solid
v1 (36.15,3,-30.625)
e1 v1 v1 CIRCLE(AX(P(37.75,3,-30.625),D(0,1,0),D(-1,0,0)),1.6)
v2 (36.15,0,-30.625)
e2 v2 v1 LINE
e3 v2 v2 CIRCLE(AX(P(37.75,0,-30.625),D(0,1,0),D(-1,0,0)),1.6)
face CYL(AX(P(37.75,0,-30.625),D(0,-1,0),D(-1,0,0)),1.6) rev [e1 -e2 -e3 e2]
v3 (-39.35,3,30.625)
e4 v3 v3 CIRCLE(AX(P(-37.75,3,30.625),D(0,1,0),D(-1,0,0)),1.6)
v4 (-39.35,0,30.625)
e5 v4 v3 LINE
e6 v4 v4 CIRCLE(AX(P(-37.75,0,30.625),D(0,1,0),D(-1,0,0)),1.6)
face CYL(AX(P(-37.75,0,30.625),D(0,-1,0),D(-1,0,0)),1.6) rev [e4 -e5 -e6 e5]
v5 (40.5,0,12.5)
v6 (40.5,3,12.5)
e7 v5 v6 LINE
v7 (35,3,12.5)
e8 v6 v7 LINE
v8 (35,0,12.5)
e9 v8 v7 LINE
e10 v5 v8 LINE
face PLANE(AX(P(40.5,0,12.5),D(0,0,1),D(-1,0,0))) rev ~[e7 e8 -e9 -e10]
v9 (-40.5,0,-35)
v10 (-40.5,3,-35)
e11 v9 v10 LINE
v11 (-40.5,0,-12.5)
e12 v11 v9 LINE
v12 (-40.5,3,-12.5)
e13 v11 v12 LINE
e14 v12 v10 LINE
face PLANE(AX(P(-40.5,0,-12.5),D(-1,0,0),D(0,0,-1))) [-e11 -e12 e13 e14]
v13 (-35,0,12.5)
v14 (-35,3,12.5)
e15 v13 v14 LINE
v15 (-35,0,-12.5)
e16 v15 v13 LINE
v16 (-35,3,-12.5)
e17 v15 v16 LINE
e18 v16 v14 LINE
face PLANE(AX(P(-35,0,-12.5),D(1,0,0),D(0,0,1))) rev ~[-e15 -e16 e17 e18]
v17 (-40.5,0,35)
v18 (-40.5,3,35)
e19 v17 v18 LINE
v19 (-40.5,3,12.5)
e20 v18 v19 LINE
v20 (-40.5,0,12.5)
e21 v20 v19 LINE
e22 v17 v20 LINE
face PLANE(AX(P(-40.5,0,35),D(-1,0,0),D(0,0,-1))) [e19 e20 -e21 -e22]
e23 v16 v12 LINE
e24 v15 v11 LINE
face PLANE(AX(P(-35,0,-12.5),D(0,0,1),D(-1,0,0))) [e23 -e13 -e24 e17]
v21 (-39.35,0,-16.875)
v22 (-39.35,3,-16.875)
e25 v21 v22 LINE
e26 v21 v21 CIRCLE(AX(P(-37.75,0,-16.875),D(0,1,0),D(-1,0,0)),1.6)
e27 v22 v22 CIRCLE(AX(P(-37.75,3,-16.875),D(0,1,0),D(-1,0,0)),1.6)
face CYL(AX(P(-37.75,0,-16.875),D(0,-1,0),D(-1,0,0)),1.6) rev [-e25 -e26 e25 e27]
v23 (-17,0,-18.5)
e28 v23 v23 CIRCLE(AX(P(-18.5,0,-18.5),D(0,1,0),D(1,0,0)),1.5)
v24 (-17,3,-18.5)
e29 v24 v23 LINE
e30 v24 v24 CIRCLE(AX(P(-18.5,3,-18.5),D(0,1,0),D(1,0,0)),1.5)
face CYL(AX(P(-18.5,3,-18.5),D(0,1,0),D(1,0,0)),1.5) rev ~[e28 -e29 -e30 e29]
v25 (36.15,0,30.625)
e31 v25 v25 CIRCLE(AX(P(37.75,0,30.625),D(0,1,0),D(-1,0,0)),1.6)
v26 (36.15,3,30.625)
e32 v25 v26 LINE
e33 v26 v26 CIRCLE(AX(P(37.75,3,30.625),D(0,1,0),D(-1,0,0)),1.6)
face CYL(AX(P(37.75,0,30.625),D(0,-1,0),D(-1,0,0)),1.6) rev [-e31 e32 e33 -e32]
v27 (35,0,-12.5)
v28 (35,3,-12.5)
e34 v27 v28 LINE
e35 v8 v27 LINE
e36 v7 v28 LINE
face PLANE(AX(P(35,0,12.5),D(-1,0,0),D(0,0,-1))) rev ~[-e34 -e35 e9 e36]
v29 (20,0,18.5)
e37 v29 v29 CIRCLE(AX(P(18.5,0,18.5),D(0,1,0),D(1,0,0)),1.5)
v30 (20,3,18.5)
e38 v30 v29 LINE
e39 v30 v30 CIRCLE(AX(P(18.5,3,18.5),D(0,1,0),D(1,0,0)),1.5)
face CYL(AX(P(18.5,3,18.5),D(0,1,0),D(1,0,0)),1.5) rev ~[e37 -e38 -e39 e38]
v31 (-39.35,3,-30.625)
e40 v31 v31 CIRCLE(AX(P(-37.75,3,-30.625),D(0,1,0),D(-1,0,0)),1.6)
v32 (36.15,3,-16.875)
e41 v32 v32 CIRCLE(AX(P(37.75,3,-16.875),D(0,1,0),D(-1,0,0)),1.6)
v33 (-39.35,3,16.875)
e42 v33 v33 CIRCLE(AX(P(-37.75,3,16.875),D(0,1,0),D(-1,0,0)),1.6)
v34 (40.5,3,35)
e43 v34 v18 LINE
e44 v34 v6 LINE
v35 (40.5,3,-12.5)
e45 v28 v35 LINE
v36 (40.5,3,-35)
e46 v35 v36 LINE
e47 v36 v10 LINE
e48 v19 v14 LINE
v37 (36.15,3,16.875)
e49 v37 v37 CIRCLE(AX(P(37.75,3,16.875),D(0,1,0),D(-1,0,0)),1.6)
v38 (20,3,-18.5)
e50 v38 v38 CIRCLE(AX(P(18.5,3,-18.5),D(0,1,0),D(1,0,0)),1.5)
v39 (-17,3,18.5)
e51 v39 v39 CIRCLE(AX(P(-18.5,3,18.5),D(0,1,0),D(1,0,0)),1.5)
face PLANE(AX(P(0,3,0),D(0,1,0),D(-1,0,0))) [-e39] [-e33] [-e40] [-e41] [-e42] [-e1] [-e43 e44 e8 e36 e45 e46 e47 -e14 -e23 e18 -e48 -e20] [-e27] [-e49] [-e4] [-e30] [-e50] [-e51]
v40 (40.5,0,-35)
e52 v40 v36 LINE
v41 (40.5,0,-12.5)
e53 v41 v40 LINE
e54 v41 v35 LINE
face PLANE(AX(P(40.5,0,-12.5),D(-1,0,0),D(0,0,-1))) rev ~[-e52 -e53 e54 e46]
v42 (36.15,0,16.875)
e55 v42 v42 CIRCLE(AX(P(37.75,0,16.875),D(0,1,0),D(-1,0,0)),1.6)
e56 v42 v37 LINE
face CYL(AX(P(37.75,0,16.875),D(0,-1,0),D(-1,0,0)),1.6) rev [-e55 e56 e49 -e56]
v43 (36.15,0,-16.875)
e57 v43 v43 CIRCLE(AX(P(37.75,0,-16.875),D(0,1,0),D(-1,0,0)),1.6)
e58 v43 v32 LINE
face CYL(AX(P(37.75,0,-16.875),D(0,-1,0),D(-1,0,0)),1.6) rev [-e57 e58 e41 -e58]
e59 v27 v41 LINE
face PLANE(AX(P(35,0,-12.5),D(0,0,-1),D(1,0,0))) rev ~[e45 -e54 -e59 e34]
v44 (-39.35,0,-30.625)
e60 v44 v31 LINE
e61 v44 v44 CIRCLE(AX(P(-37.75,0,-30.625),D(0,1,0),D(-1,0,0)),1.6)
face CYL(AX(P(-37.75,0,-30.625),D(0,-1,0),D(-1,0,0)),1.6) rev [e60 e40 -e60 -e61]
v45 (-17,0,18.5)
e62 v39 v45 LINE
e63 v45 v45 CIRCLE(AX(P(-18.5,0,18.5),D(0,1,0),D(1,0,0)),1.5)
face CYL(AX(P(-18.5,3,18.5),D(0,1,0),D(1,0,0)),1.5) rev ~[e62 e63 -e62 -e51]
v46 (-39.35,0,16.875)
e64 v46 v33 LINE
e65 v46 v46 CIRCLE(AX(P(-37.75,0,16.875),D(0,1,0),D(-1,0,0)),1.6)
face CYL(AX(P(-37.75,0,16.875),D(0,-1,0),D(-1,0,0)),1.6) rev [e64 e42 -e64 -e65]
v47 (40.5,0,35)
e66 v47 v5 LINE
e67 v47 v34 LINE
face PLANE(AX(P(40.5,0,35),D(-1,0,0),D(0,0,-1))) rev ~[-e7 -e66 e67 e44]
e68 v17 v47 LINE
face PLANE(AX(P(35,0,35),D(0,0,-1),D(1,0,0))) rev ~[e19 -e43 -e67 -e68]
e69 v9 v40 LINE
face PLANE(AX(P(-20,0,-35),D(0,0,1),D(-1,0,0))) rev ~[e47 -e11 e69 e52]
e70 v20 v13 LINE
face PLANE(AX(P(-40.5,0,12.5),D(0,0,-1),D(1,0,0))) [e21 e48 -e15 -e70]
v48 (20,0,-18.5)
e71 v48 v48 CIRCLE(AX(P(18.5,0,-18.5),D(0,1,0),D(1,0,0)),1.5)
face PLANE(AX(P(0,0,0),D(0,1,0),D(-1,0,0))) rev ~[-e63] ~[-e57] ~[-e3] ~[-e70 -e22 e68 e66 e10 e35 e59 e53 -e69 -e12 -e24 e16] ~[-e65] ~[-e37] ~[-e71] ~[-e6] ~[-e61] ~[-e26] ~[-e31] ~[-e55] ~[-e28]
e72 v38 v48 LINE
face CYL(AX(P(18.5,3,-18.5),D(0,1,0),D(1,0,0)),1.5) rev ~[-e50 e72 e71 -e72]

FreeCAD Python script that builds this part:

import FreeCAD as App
import Part
import Sketcher

V = App.Vector
Q = App.Units.Quantity

doc = App.newDocument("Part")
body = doc.addObject("PartDesign::Body", "Body")

sketch1 = body.newObject("Sketcher::SketchObject", "Sketch")
sketch1.AttachmentSupport = (doc.getObject("XZ_Plane"), [""])
sketch1.MapMode = "FlatFace"
sketch1.addGeometry(Part.LineSegment(V(40.5, 35, 0), V(40.5, 12.5, 0)), False)
sketch1.addGeometry(Part.LineSegment(V(40.5, 12.5, 0), V(35, 12.5, 0)), False)
sketch1.addGeometry(Part.LineSegment(V(35, 12.5, 0), V(35, -12.5, 0)), False)
sketch1.addGeometry(Part.LineSegment(V(35, -12.5, 0), V(40.5, -12.5, 0)), False)
sketch1.addGeometry(Part.LineSegment(V(40.5, -12.5, 0), V(40.5, -35, 0)), False)
sketch1.addGeometry(Part.LineSegment(V(40.5, -35, 0), V(-40.5, -35, 0)), False)
sketch1.addGeometry(Part.LineSegment(V(-40.5, -35, 0), V(-40.5, -12.5, 0)), False)
sketch1.addGeometry(Part.LineSegment(V(-40.5, -12.5, 0), V(-35, -12.5, 0)), False)
sketch1.addGeometry(Part.LineSegment(V(-35, -12.5, 0), V(-35, 12.5, 0)), False)
sketch1.addGeometry(Part.LineSegment(V(-35, 12.5, 0), V(-40.5, 12.5, 0)), False)
sketch1.addGeometry(Part.LineSegment(V(-40.5, 12.5, 0), V(-40.5, 35, 0)), False)
sketch1.addGeometry(Part.LineSegment(V(-40.5, 35, 0), V(40.5, 35, 0)), False)
sketch1.addGeometry(Part.Circle(V(37.75, 16.875, 0), V(0, 0, 1), 1.6), False)
sketch1.addGeometry(Part.Circle(V(37.75, 30.625, 0), V(0, 0, 1), 1.6), False)
sketch1.addGeometry(Part.Circle(V(-37.75, 30.625, 0), V(0, 0, 1), 1.6), False)
sketch1.addGeometry(Part.Circle(V(-37.75, 16.875, 0), V(0, 0, 1), 1.6), False)
sketch1.addGeometry(Part.Circle(V(-37.75, -16.875, 0), V(0, 0, 1), 1.6), False)
sketch1.addGeometry(Part.Circle(V(-37.75, -30.625, 0), V(0, 0, 1), 1.6), False)
sketch1.addGeometry(Part.Circle(V(37.75, -16.875, 0), V(0, 0, 1), 1.6), False)
sketch1.addGeometry(Part.Circle(V(37.75, -30.625, 0), V(0, 0, 1), 1.6), False)
sketch1.addConstraint(Sketcher.Constraint("Coincident", 0, 2, 1, 1))
sketch1.addConstraint(Sketcher.Constraint("Coincident", 1, 2, 2, 1))
sketch1.addConstraint(Sketcher.Constraint("Coincident", 2, 2, 3, 1))
sketch1.addConstraint(Sketcher.Constraint("Coincident", 3, 2, 4, 1))
sketch1.addConstraint(Sketcher.Constraint("Coincident", 4, 2, 5, 1))
sketch1.addConstraint(Sketcher.Constraint("Coincident", 5, 2, 6, 1))
sketch1.addConstraint(Sketcher.Constraint("Coincident", 6, 2, 7, 1))
sketch1.addConstraint(Sketcher.Constraint("Coincident", 7, 2, 8, 1))
sketch1.addConstraint(Sketcher.Constraint("Coincident", 8, 2, 9, 1))
sketch1.addConstraint(Sketcher.Constraint("Coincident", 9, 2, 10, 1))
sketch1.addConstraint(Sketcher.Constraint("Coincident", 10, 2, 11, 1))
sketch1.addConstraint(Sketcher.Constraint("Coincident", 11, 2, 0, 1))
sketch1.addConstraint(Sketcher.Constraint("Vertical", 0))
sketch1.addConstraint(Sketcher.Constraint("Horizontal", 1))
sketch1.addConstraint(Sketcher.Constraint("Vertical", 2))
sketch1.addConstraint(Sketcher.Constraint("Horizontal", 3))
sketch1.addConstraint(Sketcher.Constraint("Vertical", 4))
sketch1.addConstraint(Sketcher.Constraint("Horizontal", 5))
sketch1.addConstraint(Sketcher.Constraint("Vertical", 6))
sketch1.addConstraint(Sketcher.Constraint("Horizontal", 7))
sketch1.addConstraint(Sketcher.Constraint("Vertical", 8))
sketch1.addConstraint(Sketcher.Constraint("Horizontal", 9))
sketch1.addConstraint(Sketcher.Constraint("Vertical", 10))
sketch1.addConstraint(Sketcher.Constraint("Horizontal", 11))
sketch1.addConstraint(Sketcher.Constraint("Equal", 12, 13))
sketch1.addConstraint(Sketcher.Constraint("Equal", 13, 14))
sketch1.addConstraint(Sketcher.Constraint("Equal", 14, 15))
sketch1.addConstraint(Sketcher.Constraint("Equal", 15, 16))
sketch1.addConstraint(Sketcher.Constraint("Equal", 16, 17))
sketch1.addConstraint(Sketcher.Constraint("Equal", 17, 18))
sketch1.addConstraint(Sketcher.Constraint("Equal", 18, 19))
sketch1.addConstraint(Sketcher.Constraint("Symmetric", 12, 3, 16, 3, -1, 1))
sketch1.addConstraint(Sketcher.Constraint("Symmetric", 13, 3, 17, 3, -1, 1))
sketch1.addConstraint(Sketcher.Constraint("Symmetric", 15, 3, 18, 3, -1, 1))
sketch1.addConstraint(Sketcher.Constraint("Symmetric", 14, 3, 19, 3, -1, 1))
sketch1.addConstraint(Sketcher.Constraint("Symmetric", 0, 2, 6, 2, -1, 1))
sketch1.addConstraint(Sketcher.Constraint("Symmetric", 2, 2, 8, 2, -1, 1))
sketch1.addConstraint(Sketcher.Constraint("Symmetric", 4, 2, 10, 2, -1, 1))
sketch1.addConstraint(Sketcher.Constraint("Symmetric", 13, 3, 14, 3, -2))
sketch1.addConstraint(Sketcher.Constraint("Symmetric", 12, 3, 15, 3, -2))
sketch1.addConstraint(Sketcher.Constraint("Symmetric", 3, 2, 6, 2, -2))
sketch1.addConstraint(Sketcher.Constraint("Vertical", 12, 3, 13, 3))
sketch1.addConstraint(Sketcher.Constraint("Diameter", 12, Q("3.2 mm")))
sketch1.addConstraint(Sketcher.Constraint("DistanceX", 5, 2, 5, 1, Q("81 mm")))
sketch1.addConstraint(Sketcher.Constraint("DistanceY", 2, 2, 2, 1, Q("25 mm")))
sketch1.addConstraint(Sketcher.Constraint("DistanceX", 1, 2, 1, 1, Q("5.5 mm")))
sketch1.addConstraint(Sketcher.Constraint("DistanceY", 0, 2, 0, 1, Q("22.5 mm")))
sketch1.addConstraint(Sketcher.Constraint("DistanceX", 14, 3, 13, 3, Q("75.5 mm")))
sketch1.addConstraint(Sketcher.Constraint("DistanceY", 16, 3, 14, 3, Q("47.5 mm")))
sketch1.addConstraint(Sketcher.Constraint("DistanceY", 12, 3, 13, 3, Q("13.75 mm")))
pad1 = body.newObject("PartDesign::Pad", "Pad")
pad1.Profile = sketch1
pad1.Length = 3
pad1.Reversed = True

sketch2 = body.newObject("Sketcher::SketchObject", "Sketch001")
sketch2.AttachmentSupport = (doc.getObject("XZ_Plane"), [""])
sketch2.MapMode = "FlatFace"
sketch2.AttachmentOffset = App.Placement(V(0, 0, -3), App.Rotation())
sketch2.addGeometry(Part.Circle(V(-18.5, -18.5, 0), V(0, 0, 1), 1.5), False)
sketch2.addGeometry(Part.Circle(V(18.5, -18.5, 0), V(0, 0, 1), 1.5), False)
sketch2.addGeometry(Part.Circle(V(18.5, 18.5, 0), V(0, 0, 1), 1.5), False)
sketch2.addGeometry(Part.Circle(V(-18.5, 18.5, 0), V(0, 0, 1), 1.5), False)
sketch2.addConstraint(Sketcher.Constraint("Equal", 0, 1))
sketch2.addConstraint(Sketcher.Constraint("Equal", 1, 2))
sketch2.addConstraint(Sketcher.Constraint("Equal", 2, 3))
sketch2.addConstraint(Sketcher.Constraint("Symmetric", 0, 3, 2, 3, -1, 1))
sketch2.addConstraint(Sketcher.Constraint("Symmetric", 1, 3, 3, 3, -1, 1))
sketch2.addConstraint(Sketcher.Constraint("Symmetric", 0, 3, 1, 3, -2))
sketch2.addConstraint(Sketcher.Constraint("Diameter", 0, Q("3 mm")))
sketch2.addConstraint(Sketcher.Constraint("DistanceX", 0, 3, 1, 3, Q("37 mm")))
sketch2.addConstraint(Sketcher.Constraint("DistanceY", 1, 3, 2, 3, Q("37 mm")))
pocket1 = body.newObject("PartDesign::Pocket", "Pocket")
pocket1.Profile = sketch2
pocket1.Length = 10
pocket1.Reversed = True

doc.recompute()
